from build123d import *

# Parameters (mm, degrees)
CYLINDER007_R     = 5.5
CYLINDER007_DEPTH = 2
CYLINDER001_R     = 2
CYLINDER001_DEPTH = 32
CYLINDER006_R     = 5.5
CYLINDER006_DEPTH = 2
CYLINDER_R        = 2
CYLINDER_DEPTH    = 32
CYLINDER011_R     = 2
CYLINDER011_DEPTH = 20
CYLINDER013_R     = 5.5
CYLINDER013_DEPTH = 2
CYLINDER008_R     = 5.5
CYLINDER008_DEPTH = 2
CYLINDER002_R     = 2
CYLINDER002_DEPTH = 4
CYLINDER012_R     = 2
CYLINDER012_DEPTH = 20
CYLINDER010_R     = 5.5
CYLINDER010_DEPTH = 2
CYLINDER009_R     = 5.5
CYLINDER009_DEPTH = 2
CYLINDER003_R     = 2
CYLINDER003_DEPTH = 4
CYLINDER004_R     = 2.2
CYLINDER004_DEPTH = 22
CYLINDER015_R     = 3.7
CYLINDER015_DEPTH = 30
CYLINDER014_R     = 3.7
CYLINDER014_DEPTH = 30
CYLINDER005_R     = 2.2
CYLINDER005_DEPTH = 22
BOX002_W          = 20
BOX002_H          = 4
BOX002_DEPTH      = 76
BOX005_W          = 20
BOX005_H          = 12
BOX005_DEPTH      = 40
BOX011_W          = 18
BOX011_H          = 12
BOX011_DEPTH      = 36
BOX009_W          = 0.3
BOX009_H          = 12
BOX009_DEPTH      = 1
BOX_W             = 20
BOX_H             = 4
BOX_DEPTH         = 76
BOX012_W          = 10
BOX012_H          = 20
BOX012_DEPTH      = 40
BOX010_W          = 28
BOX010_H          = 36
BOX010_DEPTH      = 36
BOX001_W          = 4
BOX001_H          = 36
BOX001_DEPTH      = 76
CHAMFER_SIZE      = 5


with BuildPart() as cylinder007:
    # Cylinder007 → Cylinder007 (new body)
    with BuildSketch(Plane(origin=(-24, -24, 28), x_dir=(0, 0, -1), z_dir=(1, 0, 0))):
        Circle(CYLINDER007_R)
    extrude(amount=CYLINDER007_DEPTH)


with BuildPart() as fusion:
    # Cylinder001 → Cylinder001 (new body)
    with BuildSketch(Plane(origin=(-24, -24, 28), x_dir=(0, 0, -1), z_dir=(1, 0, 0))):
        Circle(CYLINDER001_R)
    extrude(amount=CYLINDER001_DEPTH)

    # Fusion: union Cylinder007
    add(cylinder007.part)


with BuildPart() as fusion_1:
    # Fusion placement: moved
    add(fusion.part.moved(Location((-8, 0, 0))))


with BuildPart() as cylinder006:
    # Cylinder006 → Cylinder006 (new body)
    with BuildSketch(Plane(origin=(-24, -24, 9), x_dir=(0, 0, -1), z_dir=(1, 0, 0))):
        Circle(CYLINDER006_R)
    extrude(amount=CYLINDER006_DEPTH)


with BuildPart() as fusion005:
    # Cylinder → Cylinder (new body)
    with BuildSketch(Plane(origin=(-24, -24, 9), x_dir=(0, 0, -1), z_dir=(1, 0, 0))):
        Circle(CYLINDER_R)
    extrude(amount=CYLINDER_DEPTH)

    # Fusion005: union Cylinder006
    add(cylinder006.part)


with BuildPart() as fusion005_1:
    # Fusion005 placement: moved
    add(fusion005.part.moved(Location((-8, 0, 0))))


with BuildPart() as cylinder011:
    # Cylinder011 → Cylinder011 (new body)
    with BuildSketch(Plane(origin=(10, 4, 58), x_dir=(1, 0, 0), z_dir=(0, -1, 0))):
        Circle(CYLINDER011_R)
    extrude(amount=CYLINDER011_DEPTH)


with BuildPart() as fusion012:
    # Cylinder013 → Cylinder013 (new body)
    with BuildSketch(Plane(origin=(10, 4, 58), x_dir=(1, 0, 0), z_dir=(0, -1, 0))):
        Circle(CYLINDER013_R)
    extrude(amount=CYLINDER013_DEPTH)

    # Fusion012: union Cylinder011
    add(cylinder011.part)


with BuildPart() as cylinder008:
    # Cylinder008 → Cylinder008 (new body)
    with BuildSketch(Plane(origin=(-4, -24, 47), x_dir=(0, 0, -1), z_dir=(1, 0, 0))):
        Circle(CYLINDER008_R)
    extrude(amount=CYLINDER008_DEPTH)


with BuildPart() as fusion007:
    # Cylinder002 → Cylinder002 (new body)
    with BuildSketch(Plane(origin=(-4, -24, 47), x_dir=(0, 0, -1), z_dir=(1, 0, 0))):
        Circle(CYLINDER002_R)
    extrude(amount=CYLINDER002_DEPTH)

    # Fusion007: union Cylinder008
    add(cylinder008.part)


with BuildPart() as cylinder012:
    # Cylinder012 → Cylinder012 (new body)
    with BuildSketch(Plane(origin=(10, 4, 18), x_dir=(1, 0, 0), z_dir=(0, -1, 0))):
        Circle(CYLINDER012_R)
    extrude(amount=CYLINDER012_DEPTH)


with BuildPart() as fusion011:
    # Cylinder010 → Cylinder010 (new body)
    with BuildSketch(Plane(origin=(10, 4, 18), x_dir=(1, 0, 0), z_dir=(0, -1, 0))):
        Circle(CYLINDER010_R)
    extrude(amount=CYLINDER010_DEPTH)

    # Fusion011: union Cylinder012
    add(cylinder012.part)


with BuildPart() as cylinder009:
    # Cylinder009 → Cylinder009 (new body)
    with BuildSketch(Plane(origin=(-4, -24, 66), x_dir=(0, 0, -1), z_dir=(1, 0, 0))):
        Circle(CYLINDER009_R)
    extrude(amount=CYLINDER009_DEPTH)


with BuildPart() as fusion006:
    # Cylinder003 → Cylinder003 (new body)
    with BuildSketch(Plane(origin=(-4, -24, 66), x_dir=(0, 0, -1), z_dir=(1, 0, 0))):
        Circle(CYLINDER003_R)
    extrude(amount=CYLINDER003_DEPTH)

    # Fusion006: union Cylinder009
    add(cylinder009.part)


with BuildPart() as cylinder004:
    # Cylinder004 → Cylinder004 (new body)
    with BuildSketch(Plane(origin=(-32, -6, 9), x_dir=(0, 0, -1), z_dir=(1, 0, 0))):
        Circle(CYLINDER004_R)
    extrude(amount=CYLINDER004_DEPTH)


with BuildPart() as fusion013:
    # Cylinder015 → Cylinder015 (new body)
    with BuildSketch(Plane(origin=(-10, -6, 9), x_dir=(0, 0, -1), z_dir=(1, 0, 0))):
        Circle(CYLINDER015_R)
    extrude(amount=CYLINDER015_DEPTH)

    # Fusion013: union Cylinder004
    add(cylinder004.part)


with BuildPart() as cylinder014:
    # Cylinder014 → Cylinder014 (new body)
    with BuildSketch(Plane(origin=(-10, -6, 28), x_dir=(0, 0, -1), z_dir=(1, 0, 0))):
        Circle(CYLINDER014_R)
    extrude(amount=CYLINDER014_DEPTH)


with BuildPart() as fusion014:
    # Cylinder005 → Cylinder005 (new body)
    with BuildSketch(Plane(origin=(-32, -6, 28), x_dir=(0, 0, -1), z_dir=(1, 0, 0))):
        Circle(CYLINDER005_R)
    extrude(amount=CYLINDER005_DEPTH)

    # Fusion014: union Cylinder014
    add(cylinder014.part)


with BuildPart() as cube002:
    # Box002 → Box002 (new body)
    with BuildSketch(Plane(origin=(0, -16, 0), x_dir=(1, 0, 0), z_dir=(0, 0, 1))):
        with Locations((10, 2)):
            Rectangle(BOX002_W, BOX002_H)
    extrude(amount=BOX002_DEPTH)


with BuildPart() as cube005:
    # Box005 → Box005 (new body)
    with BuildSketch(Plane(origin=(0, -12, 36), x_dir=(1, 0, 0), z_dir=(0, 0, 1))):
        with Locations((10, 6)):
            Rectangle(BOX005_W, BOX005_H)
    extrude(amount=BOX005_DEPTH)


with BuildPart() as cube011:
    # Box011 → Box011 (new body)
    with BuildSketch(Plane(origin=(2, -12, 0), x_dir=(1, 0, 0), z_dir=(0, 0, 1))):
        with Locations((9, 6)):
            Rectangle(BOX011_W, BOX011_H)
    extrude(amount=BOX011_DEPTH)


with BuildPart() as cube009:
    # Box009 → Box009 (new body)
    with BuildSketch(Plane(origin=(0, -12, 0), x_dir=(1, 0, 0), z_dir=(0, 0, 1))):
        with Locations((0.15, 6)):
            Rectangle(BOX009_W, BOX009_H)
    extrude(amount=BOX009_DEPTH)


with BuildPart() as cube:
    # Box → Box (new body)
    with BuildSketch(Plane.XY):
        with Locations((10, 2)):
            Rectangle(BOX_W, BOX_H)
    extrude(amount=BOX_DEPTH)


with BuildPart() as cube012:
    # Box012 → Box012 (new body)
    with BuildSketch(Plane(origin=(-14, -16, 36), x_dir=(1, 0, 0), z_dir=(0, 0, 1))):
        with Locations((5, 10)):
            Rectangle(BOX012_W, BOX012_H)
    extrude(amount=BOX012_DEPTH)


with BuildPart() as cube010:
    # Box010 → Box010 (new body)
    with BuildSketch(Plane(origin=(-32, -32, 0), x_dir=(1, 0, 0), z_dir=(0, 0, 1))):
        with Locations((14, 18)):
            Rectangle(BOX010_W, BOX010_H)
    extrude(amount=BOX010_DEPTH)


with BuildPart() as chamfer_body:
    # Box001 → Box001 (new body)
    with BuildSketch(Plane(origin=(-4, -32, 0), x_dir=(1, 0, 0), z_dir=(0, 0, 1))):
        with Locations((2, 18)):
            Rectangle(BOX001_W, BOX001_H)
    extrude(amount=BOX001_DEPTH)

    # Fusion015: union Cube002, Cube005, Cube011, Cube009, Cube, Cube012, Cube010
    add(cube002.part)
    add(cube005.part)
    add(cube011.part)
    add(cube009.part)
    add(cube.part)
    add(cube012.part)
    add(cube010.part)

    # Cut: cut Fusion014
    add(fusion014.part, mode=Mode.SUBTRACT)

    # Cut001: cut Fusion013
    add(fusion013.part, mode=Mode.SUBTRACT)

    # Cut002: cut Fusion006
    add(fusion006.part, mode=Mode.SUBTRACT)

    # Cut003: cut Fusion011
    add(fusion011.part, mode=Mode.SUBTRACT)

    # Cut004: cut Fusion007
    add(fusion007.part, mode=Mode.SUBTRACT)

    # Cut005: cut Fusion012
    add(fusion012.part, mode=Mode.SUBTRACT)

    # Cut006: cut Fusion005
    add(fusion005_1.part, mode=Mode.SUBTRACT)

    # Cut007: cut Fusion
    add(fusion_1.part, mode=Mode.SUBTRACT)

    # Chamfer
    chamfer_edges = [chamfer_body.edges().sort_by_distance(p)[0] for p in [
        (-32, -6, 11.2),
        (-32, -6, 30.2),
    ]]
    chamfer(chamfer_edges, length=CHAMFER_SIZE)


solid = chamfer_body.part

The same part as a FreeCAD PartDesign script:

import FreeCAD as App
import Part
import Sketcher

V = App.Vector


def edges_at(feature, points):
    """Names of the edges that pass closest to the given points."""
    edges = feature.Shape.Edges
    near = lambda p: min(range(len(edges)), key=lambda i: edges[i].distToShape(Part.Vertex(*p))[0])
    return sorted({f"Edge{near(p) + 1}" for p in points})

doc = App.newDocument("Part")
body = doc.addObject("PartDesign::Body", "Body")

sketch1 = body.newObject("Sketcher::SketchObject", "Sketch")
sketch1.AttachmentSupport = (doc.getObject("YZ_Plane"), [""])
sketch1.MapMode = "FlatFace"
sketch1.AttachmentOffset = App.Placement(V(0, 0, -24), App.Rotation())
sketch1.addGeometry(Part.Circle(V(-24, 28, 0), V(0, 0, 1), 5.5), False)
sketch1.addConstraint(Sketcher.Constraint("Diameter", 0, 11.0))
sketch1.addConstraint(Sketcher.Constraint("DistanceX", 0, 3, -1, 1, 24.0))
sketch1.addConstraint(Sketcher.Constraint("DistanceY", -1, 1, 0, 3, 28.0))
pad1 = body.newObject("PartDesign::Pad", "Pad")
pad1.Profile = sketch1
pad1.Length = 2
body2 = doc.addObject("PartDesign::Body", "Body001")

sketch2 = body2.newObject("Sketcher::SketchObject", "Sketch001")
sketch2.AttachmentSupport = (doc.getObject("YZ_Plane001"), [""])
sketch2.MapMode = "FlatFace"
sketch2.AttachmentOffset = App.Placement(V(0, 0, -24), App.Rotation())
sketch2.addGeometry(Part.Circle(V(-24, 28, 0), V(0, 0, 1), 2), False)
sketch2.addConstraint(Sketcher.Constraint("Diameter", 0, 4.0))
sketch2.addConstraint(Sketcher.Constraint("DistanceX", 0, 3, -1, 1, 24.0))
sketch2.addConstraint(Sketcher.Constraint("DistanceY", -1, 1, 0, 3, 28.0))
pad2 = body2.newObject("PartDesign::Pad", "Pad001")
pad2.Profile = sketch2
pad2.Length = 32
doc.recompute()

boolean = body2.newObject("PartDesign::Boolean", "Boolean")
boolean.Type = "Fuse"
boolean.addObjects([body])
body3 = doc.addObject("PartDesign::Body", "Body002")
doc.recompute()

body2.Placement = App.Placement(V(-8, 0, 0), App.Rotation(V(0, 0, 1), 0))
boolean2 = body3.newObject("PartDesign::Boolean", "Boolean001")
boolean2.Type = "Fuse"
boolean2.addObjects([body2])
body4 = doc.addObject("PartDesign::Body", "Body003")

sketch3 = body4.newObject("Sketcher::SketchObject", "Sketch002")
sketch3.AttachmentSupport = (doc.getObject("YZ_Plane003"), [""])
sketch3.MapMode = "FlatFace"
sketch3.AttachmentOffset = App.Placement(V(0, 0, -24), App.Rotation())
sketch3.addGeometry(Part.Circle(V(-24, 9, 0), V(0, 0, 1), 5.5), False)
sketch3.addConstraint(Sketcher.Constraint("Diameter", 0, 11.0))
sketch3.addConstraint(Sketcher.Constraint("DistanceX", 0, 3, -1, 1, 24.0))
sketch3.addConstraint(Sketcher.Constraint("DistanceY", -1, 1, 0, 3, 9.0))
pad3 = body4.newObject("PartDesign::Pad", "Pad002")
pad3.Profile = sketch3
pad3.Length = 2
body5 = doc.addObject("PartDesign::Body", "Body004")

sketch4 = body5.newObject("Sketcher::SketchObject", "Sketch003")
sketch4.AttachmentSupport = (doc.getObject("YZ_Plane004"), [""])
sketch4.MapMode = "FlatFace"
sketch4.AttachmentOffset = App.Placement(V(0, 0, -24), App.Rotation())
sketch4.addGeometry(Part.Circle(V(-24, 9, 0), V(0, 0, 1), 2), False)
sketch4.addConstraint(Sketcher.Constraint("Diameter", 0, 4.0))
sketch4.addConstraint(Sketcher.Constraint("DistanceX", 0, 3, -1, 1, 24.0))
sketch4.addConstraint(Sketcher.Constraint("DistanceY", -1, 1, 0, 3, 9.0))
pad4 = body5.newObject("PartDesign::Pad", "Pad003")
pad4.Profile = sketch4
pad4.Length = 32
doc.recompute()

boolean3 = body5.newObject("PartDesign::Boolean", "Boolean002")
boolean3.Type = "Fuse"
boolean3.addObjects([body4])
body6 = doc.addObject("PartDesign::Body", "Body005")
doc.recompute()

body5.Placement = App.Placement(V(-8, 0, 0), App.Rotation(V(0, 0, 1), 0))
boolean4 = body6.newObject("PartDesign::Boolean", "Boolean003")
boolean4.Type = "Fuse"
boolean4.addObjects([body5])
body7 = doc.addObject("PartDesign::Body", "Body006")

sketch5 = body7.newObject("Sketcher::SketchObject", "Sketch004")
sketch5.AttachmentSupport = (doc.getObject("XZ_Plane006"), [""])
sketch5.MapMode = "FlatFace"
sketch5.AttachmentOffset = App.Placement(V(0, 0, -4), App.Rotation())
sketch5.addGeometry(Part.Circle(V(10, 58, 0), V(0, 0, 1), 2), False)
sketch5.addConstraint(Sketcher.Constraint("Diameter", 0, 4.0))
sketch5.addConstraint(Sketcher.Constraint("DistanceX", -1, 1, 0, 3, 10.0))
sketch5.addConstraint(Sketcher.Constraint("DistanceY", -1, 1, 0, 3, 58.0))
pad5 = body7.newObject("PartDesign::Pad", "Pad004")
pad5.Profile = sketch5
pad5.Length = 20
body8 = doc.addObject("PartDesign::Body", "Body007")

sketch6 = body8.newObject("Sketcher::SketchObject", "Sketch005")
sketch6.AttachmentSupport = (doc.getObject("XZ_Plane007"), [""])
sketch6.MapMode = "FlatFace"
sketch6.AttachmentOffset = App.Placement(V(0, 0, -4), App.Rotation())
sketch6.addGeometry(Part.Circle(V(10, 58, 0), V(0, 0, 1), 5.5), False)
sketch6.addConstraint(Sketcher.Constraint("Diameter", 0, 11.0))
sketch6.addConstraint(Sketcher.Constraint("DistanceX", -1, 1, 0, 3, 10.0))
sketch6.addConstraint(Sketcher.Constraint("DistanceY", -1, 1, 0, 3, 58.0))
pad6 = body8.newObject("PartDesign::Pad", "Pad005")
pad6.Profile = sketch6
pad6.Length = 2
doc.recompute()

boolean5 = body8.newObject("PartDesign::Boolean", "Boolean004")
boolean5.Type = "Fuse"
boolean5.addObjects([body7])
body9 = doc.addObject("PartDesign::Body", "Body008")

sketch7 = body9.newObject("Sketcher::SketchObject", "Sketch006")
sketch7.AttachmentSupport = (doc.getObject("YZ_Plane008"), [""])
sketch7.MapMode = "FlatFace"
sketch7.AttachmentOffset = App.Placement(V(0, 0, -4), App.Rotation())
sketch7.addGeometry(Part.Circle(V(-24, 47, 0), V(0, 0, 1), 5.5), False)
sketch7.addConstraint(Sketcher.Constraint("Diameter", 0, 11.0))
sketch7.addConstraint(Sketcher.Constraint("DistanceX", 0, 3, -1, 1, 24.0))
sketch7.addConstraint(Sketcher.Constraint("DistanceY", -1, 1, 0, 3, 47.0))
pad7 = body9.newObject("PartDesign::Pad", "Pad006")
pad7.Profile = sketch7
pad7.Length = 2
body10 = doc.addObject("PartDesign::Body", "Body009")

sketch8 = body10.newObject("Sketcher::SketchObject", "Sketch007")
sketch8.AttachmentSupport = (doc.getObject("YZ_Plane009"), [""])
sketch8.MapMode = "FlatFace"
sketch8.AttachmentOffset = App.Placement(V(0, 0, -4), App.Rotation())
sketch8.addGeometry(Part.Circle(V(-24, 47, 0), V(0, 0, 1), 2), False)
sketch8.addConstraint(Sketcher.Constraint("Diameter", 0, 4.0))
sketch8.addConstraint(Sketcher.Constraint("DistanceX", 0, 3, -1, 1, 24.0))
sketch8.addConstraint(Sketcher.Constraint("DistanceY", -1, 1, 0, 3, 47.0))
pad8 = body10.newObject("PartDesign::Pad", "Pad007")
pad8.Profile = sketch8
pad8.Length = 4
doc.recompute()

boolean6 = body10.newObject("PartDesign::Boolean", "Boolean005")
boolean6.Type = "Fuse"
boolean6.addObjects([body9])
body11 = doc.addObject("PartDesign::Body", "Body010")

sketch9 = body11.newObject("Sketcher::SketchObject", "Sketch008")
sketch9.AttachmentSupport = (doc.getObject("XZ_Plane010"), [""])
sketch9.MapMode = "FlatFace"
sketch9.AttachmentOffset = App.Placement(V(0, 0, -4), App.Rotation())
sketch9.addGeometry(Part.Circle(V(10, 18, 0), V(0, 0, 1), 2), False)
sketch9.addConstraint(Sketcher.Constraint("Diameter", 0, 4.0))
sketch9.addConstraint(Sketcher.Constraint("DistanceX", -1, 1, 0, 3, 10.0))
sketch9.addConstraint(Sketcher.Constraint("DistanceY", -1, 1, 0, 3, 18.0))
pad9 = body11.newObject("PartDesign::Pad", "Pad008")
pad9.Profile = sketch9
pad9.Length = 20
body12 = doc.addObject("PartDesign::Body", "Body011")

sketch10 = body12.newObject("Sketcher::SketchObject", "Sketch009")
sketch10.AttachmentSupport = (doc.getObject("XZ_Plane011"), [""])
sketch10.MapMode = "FlatFace"
sketch10.AttachmentOffset = App.Placement(V(0, 0, -4), App.Rotation())
sketch10.addGeometry(Part.Circle(V(10, 18, 0), V(0, 0, 1), 5.5), False)
sketch10.addConstraint(Sketcher.Constraint("Diameter", 0, 11.0))
sketch10.addConstraint(Sketcher.Constraint("DistanceX", -1, 1, 0, 3, 10.0))
sketch10.addConstraint(Sketcher.Constraint("DistanceY", -1, 1, 0, 3, 18.0))
pad10 = body12.newObject("PartDesign::Pad", "Pad009")
pad10.Profile = sketch10
pad10.Length = 2
doc.recompute()

boolean7 = body12.newObject("PartDesign::Boolean", "Boolean006")
boolean7.Type = "Fuse"
boolean7.addObjects([body11])
body13 = doc.addObject("PartDesign::Body", "Body012")

sketch11 = body13.newObject("Sketcher::SketchObject", "Sketch010")
sketch11.AttachmentSupport = (doc.getObject("YZ_Plane012"), [""])
sketch11.MapMode = "FlatFace"
sketch11.AttachmentOffset = App.Placement(V(0, 0, -4), App.Rotation())
sketch11.addGeometry(Part.Circle(V(-24, 66, 0), V(0, 0, 1), 5.5), False)
sketch11.addConstraint(Sketcher.Constraint("Diameter", 0, 11.0))
sketch11.addConstraint(Sketcher.Constraint("DistanceX", 0, 3, -1, 1, 24.0))
sketch11.addConstraint(Sketcher.Constraint("DistanceY", -1, 1, 0, 3, 66.0))
pad11 = body13.newObject("PartDesign::Pad", "Pad010")
pad11.Profile = sketch11
pad11.Length = 2
body14 = doc.addObject("PartDesign::Body", "Body013")

sketch12 = body14.newObject("Sketcher::SketchObject", "Sketch011")
sketch12.AttachmentSupport = (doc.getObject("YZ_Plane013"), [""])
sketch12.MapMode = "FlatFace"
sketch12.AttachmentOffset = App.Placement(V(0, 0, -4), App.Rotation())
sketch12.addGeometry(Part.Circle(V(-24, 66, 0), V(0, 0, 1), 2), False)
sketch12.addConstraint(Sketcher.Constraint("Diameter", 0, 4.0))
sketch12.addConstraint(Sketcher.Constraint("DistanceX", 0, 3, -1, 1, 24.0))
sketch12.addConstraint(Sketcher.Constraint("DistanceY", -1, 1, 0, 3, 66.0))
pad12 = body14.newObject("PartDesign::Pad", "Pad011")
pad12.Profile = sketch12
pad12.Length = 4
doc.recompute()

boolean8 = body14.newObject("PartDesign::Boolean", "Boolean007")
boolean8.Type = "Fuse"
boolean8.addObjects([body13])
body15 = doc.addObject("PartDesign::Body", "Body014")

sketch13 = body15.newObject("Sketcher::SketchObject", "Sketch012")
sketch13.AttachmentSupport = (doc.getObject("YZ_Plane014"), [""])
sketch13.MapMode = "FlatFace"
sketch13.AttachmentOffset = App.Placement(V(0, 0, -32), App.Rotation())
sketch13.addGeometry(Part.Circle(V(-6, 9, 0), V(0, 0, 1), 2.2), False)
sketch13.addConstraint(Sketcher.Constraint("Diameter", 0, 4.4))
sketch13.addConstraint(Sketcher.Constraint("DistanceX", 0, 3, -1, 1, 6.0))
sketch13.addConstraint(Sketcher.Constraint("DistanceY", -1, 1, 0, 3, 9.0))
pad13 = body15.newObject("PartDesign::Pad", "Pad012")
pad13.Profile = sketch13
pad13.Length = 22
body16 = doc.addObject("PartDesign::Body", "Body015")

sketch14 = body16.newObject("Sketcher::SketchObject", "Sketch013")
sketch14.AttachmentSupport = (doc.getObject("YZ_Plane015"), [""])
sketch14.MapMode = "FlatFace"
sketch14.AttachmentOffset = App.Placement(V(0, 0, -10), App.Rotation())
sketch14.addGeometry(Part.Circle(V(-6, 9, 0), V(0, 0, 1), 3.7), False)
sketch14.addConstraint(Sketcher.Constraint("Diameter", 0, 7.4))
sketch14.addConstraint(Sketcher.Constraint("DistanceX", 0, 3, -1, 1, 6.0))
sketch14.addConstraint(Sketcher.Constraint("DistanceY", -1, 1, 0, 3, 9.0))
pad14 = body16.newObject("PartDesign::Pad", "Pad013")
pad14.Profile = sketch14
pad14.Length = 30
doc.recompute()

boolean9 = body16.newObject("PartDesign::Boolean", "Boolean008")
boolean9.Type = "Fuse"
boolean9.addObjects([body15])
body17 = doc.addObject("PartDesign::Body", "Body016")

sketch15 = body17.newObject("Sketcher::SketchObject", "Sketch014")
sketch15.AttachmentSupport = (doc.getObject("YZ_Plane016"), [""])
sketch15.MapMode = "FlatFace"
sketch15.AttachmentOffset = App.Placement(V(0, 0, -10), App.Rotation())
sketch15.addGeometry(Part.Circle(V(-6, 28, 0), V(0, 0, 1), 3.7), False)
sketch15.addConstraint(Sketcher.Constraint("Diameter", 0, 7.4))
sketch15.addConstraint(Sketcher.Constraint("DistanceX", 0, 3, -1, 1, 6.0))
sketch15.addConstraint(Sketcher.Constraint("DistanceY", -1, 1, 0, 3, 28.0))
pad15 = body17.newObject("PartDesign::Pad", "Pad014")
pad15.Profile = sketch15
pad15.Length = 30
body18 = doc.addObject("PartDesign::Body", "Body017")

sketch16 = body18.newObject("Sketcher::SketchObject", "Sketch015")
sketch16.AttachmentSupport = (doc.getObject("YZ_Plane017"), [""])
sketch16.MapMode = "FlatFace"
sketch16.AttachmentOffset = App.Placement(V(0, 0, -32), App.Rotation())
sketch16.addGeometry(Part.Circle(V(-6, 28, 0), V(0, 0, 1), 2.2), False)
sketch16.addConstraint(Sketcher.Constraint("Diameter", 0, 4.4))
sketch16.addConstraint(Sketcher.Constraint("DistanceX", 0, 3, -1, 1, 6.0))
sketch16.addConstraint(Sketcher.Constraint("DistanceY", -1, 1, 0, 3, 28.0))
pad16 = body18.newObject("PartDesign::Pad", "Pad015")
pad16.Profile = sketch16
pad16.Length = 22
doc.recompute()

boolean10 = body18.newObject("PartDesign::Boolean", "Boolean009")
boolean10.Type = "Fuse"
boolean10.addObjects([body17])
body19 = doc.addObject("PartDesign::Body", "Body018")

sketch17 = body19.newObject("Sketcher::SketchObject", "Sketch016")
sketch17.AttachmentSupport = (doc.getObject("XY_Plane018"), [""])
sketch17.MapMode = "FlatFace"
sketch17.addGeometry(Part.LineSegment(V(0, -12, 0), V(0, -16, 0)), False)
sketch17.addGeometry(Part.LineSegment(V(0, -16, 0), V(20, -16, 0)), False)
sketch17.addGeometry(Part.LineSegment(V(20, -16, 0), V(20, -12, 0)), False)
sketch17.addGeometry(Part.LineSegment(V(20, -12, 0), V(0, -12, 0)), False)
sketch17.addConstraint(Sketcher.Constraint("Coincident", 0, 2, 1, 1))
sketch17.addConstraint(Sketcher.Constraint("Coincident", 1, 2, 2, 1))
sketch17.addConstraint(Sketcher.Constraint("Coincident", 2, 2, 3, 1))
sketch17.addConstraint(Sketcher.Constraint("Coincident", 3, 2, 0, 1))
sketch17.addConstraint(Sketcher.Constraint("Vertical", 0))
sketch17.addConstraint(Sketcher.Constraint("Horizontal", 1))
sketch17.addConstraint(Sketcher.Constraint("Vertical", 2))
sketch17.addConstraint(Sketcher.Constraint("Horizontal", 3))
sketch17.addConstraint(Sketcher.Constraint("PointOnObject", 0, 2, -2))
sketch17.addConstraint(Sketcher.Constraint("DistanceX", 1, 1, 1, 2, 20.0))
sketch17.addConstraint(Sketcher.Constraint("DistanceY", 0, 2, 0, 1, 4.0))
sketch17.addConstraint(Sketcher.Constraint("DistanceY", 0, 2, -1, 1, 16.0))
pad17 = body19.newObject("PartDesign::Pad", "Pad016")
pad17.Profile = sketch17
pad17.Length = 76
body20 = doc.addObject("PartDesign::Body", "Body019")

sketch18 = body20.newObject("Sketcher::SketchObject", "Sketch017")
sketch18.AttachmentSupport = (doc.getObject("XY_Plane019"), [""])
sketch18.MapMode = "FlatFace"
sketch18.AttachmentOffset = App.Placement(V(0, 0, 36), App.Rotation())
sketch18.addGeometry(Part.LineSegment(V(0, 0, 0), V(0, -12, 0)), False)
sketch18.addGeometry(Part.LineSegment(V(0, -12, 0), V(20, -12, 0)), False)
sketch18.addGeometry(Part.LineSegment(V(20, -12, 0), V(20, 0, 0)), False)
sketch18.addGeometry(Part.LineSegment(V(20, 0, 0), V(0, 0, 0)), False)
sketch18.addConstraint(Sketcher.Constraint("Coincident", 0, 2, 1, 1))
sketch18.addConstraint(Sketcher.Constraint("Coincident", 1, 2, 2, 1))
sketch18.addConstraint(Sketcher.Constraint("Coincident", 2, 2, 3, 1))
sketch18.addConstraint(Sketcher.Constraint("Coincident", 3, 2, 0, 1))
sketch18.addConstraint(Sketcher.Constraint("Vertical", 0))
sketch18.addConstraint(Sketcher.Constraint("Horizontal", 1))
sketch18.addConstraint(Sketcher.Constraint("Vertical", 2))
sketch18.addConstraint(Sketcher.Constraint("Horizontal", 3))
sketch18.addConstraint(Sketcher.Constraint("Coincident", 3, 2, -1, 1))
sketch18.addConstraint(Sketcher.Constraint("DistanceX", 1, 1, 1, 2, 20.0))
sketch18.addConstraint(Sketcher.Constraint("DistanceY", 0, 2, 0, 1, 12.0))
pad18 = body20.newObject("PartDesign::Pad", "Pad017")
pad18.Profile = sketch18
pad18.Length = 40
body21 = doc.addObject("PartDesign::Body", "Body020")

sketch19 = body21.newObject("Sketcher::SketchObject", "Sketch018")
sketch19.AttachmentSupport = (doc.getObject("XY_Plane020"), [""])
sketch19.MapMode = "FlatFace"
sketch19.addGeometry(Part.LineSegment(V(2, 0, 0), V(2, -12, 0)), False)
sketch19.addGeometry(Part.LineSegment(V(2, -12, 0), V(20, -12, 0)), False)
sketch19.addGeometry(Part.LineSegment(V(20, -12, 0), V(20, 0, 0)), False)
sketch19.addGeometry(Part.LineSegment(V(20, 0, 0), V(2, 0, 0)), False)
sketch19.addConstraint(Sketcher.Constraint("Coincident", 0, 2, 1, 1))
sketch19.addConstraint(Sketcher.Constraint("Coincident", 1, 2, 2, 1))
sketch19.addConstraint(Sketcher.Constraint("Coincident", 2, 2, 3, 1))
sketch19.addConstraint(Sketcher.Constraint("Coincident", 3, 2, 0, 1))
sketch19.addConstraint(Sketcher.Constraint("Vertical", 0))
sketch19.addConstraint(Sketcher.Constraint("Horizontal", 1))
sketch19.addConstraint(Sketcher.Constraint("Vertical", 2))
sketch19.addConstraint(Sketcher.Constraint("Horizontal", 3))
sketch19.addConstraint(Sketcher.Constraint("PointOnObject", 2, 2, -1))
sketch19.addConstraint(Sketcher.Constraint("DistanceX", 1, 1, 1, 2, 18.0))
sketch19.addConstraint(Sketcher.Constraint("DistanceY", 0, 2, 0, 1, 12.0))
sketch19.addConstraint(Sketcher.Constraint("DistanceX", -1, 1, 0, 2, 2.0))
pad19 = body21.newObject("PartDesign::Pad", "Pad018")
pad19.Profile = sketch19
pad19.Length = 36
body22 = doc.addObject("PartDesign::Body", "Body021")

sketch20 = body22.newObject("Sketcher::SketchObject", "Sketch019")
sketch20.AttachmentSupport = (doc.getObject("XY_Plane021"), [""])
sketch20.MapMode = "FlatFace"
sketch20.addGeometry(Part.LineSegment(V(0, 0, 0), V(0, -12, 0)), False)
sketch20.addGeometry(Part.LineSegment(V(0, -12, 0), V(0.3, -12, 0)), False)
sketch20.addGeometry(Part.LineSegment(V(0.3, -12, 0), V(0.3, 0, 0)), False)
sketch20.addGeometry(Part.LineSegment(V(0.3, 0, 0), V(0, 0, 0)), False)
sketch20.addConstraint(Sketcher.Constraint("Coincident", 0, 2, 1, 1))
sketch20.addConstraint(Sketcher.Constraint("Coincident", 1, 2, 2, 1))
sketch20.addConstraint(Sketcher.Constraint("Coincident", 2, 2, 3, 1))
sketch20.addConstraint(Sketcher.Constraint("Coincident", 3, 2, 0, 1))
sketch20.addConstraint(Sketcher.Constraint("Vertical", 0))
sketch20.addConstraint(Sketcher.Constraint("Horizontal", 1))
sketch20.addConstraint(Sketcher.Constraint("Vertical", 2))
sketch20.addConstraint(Sketcher.Constraint("Horizontal", 3))
sketch20.addConstraint(Sketcher.Constraint("Coincident", 3, 2, -1, 1))
sketch20.addConstraint(Sketcher.Constraint("DistanceY", 0, 2, 0, 1, 12.0))
sketch20.addConstraint(Sketcher.Constraint("DistanceX", 1, 1, 1, 2, 0.3))
pad20 = body22.newObject("PartDesign::Pad", "Pad019")
pad20.Profile = sketch20
pad20.Length = 1
body23 = doc.addObject("PartDesign::Body", "Body022")

sketch21 = body23.newObject("Sketcher::SketchObject", "Sketch020")
sketch21.AttachmentSupport = (doc.getObject("XY_Plane022"), [""])
sketch21.MapMode = "FlatFace"
sketch21.addGeometry(Part.LineSegment(V(0, 4, 0), V(0, 0, 0)), False)
sketch21.addGeometry(Part.LineSegment(V(0, 0, 0), V(20, 0, 0)), False)
sketch21.addGeometry(Part.LineSegment(V(20, 0, 0), V(20, 4, 0)), False)
sketch21.addGeometry(Part.LineSegment(V(20, 4, 0), V(0, 4, 0)), False)
sketch21.addConstraint(Sketcher.Constraint("Coincident", 0, 2, 1, 1))
sketch21.addConstraint(Sketcher.Constraint("Coincident", 1, 2, 2, 1))
sketch21.addConstraint(Sketcher.Constraint("Coincident", 2, 2, 3, 1))
sketch21.addConstraint(Sketcher.Constraint("Coincident", 3, 2, 0, 1))
sketch21.addConstraint(Sketcher.Constraint("Vertical", 0))
sketch21.addConstraint(Sketcher.Constraint("Horizontal", 1))
sketch21.addConstraint(Sketcher.Constraint("Vertical", 2))
sketch21.addConstraint(Sketcher.Constraint("Horizontal", 3))
sketch21.addConstraint(Sketcher.Constraint("Coincident", 0, 2, -1, 1))
sketch21.addConstraint(Sketcher.Constraint("DistanceX", 1, 1, 1, 2, 20.0))
sketch21.addConstraint(Sketcher.Constraint("DistanceY", 0, 2, 0, 1, 4.0))
pad21 = body23.newObject("PartDesign::Pad", "Pad020")
pad21.Profile = sketch21
pad21.Length = 76
body24 = doc.addObject("PartDesign::Body", "Body023")

sketch22 = body24.newObject("Sketcher::SketchObject", "Sketch021")
sketch22.AttachmentSupport = (doc.getObject("XY_Plane023"), [""])
sketch22.MapMode = "FlatFace"
sketch22.AttachmentOffset = App.Placement(V(0, 0, 36), App.Rotation())
sketch22.addGeometry(Part.LineSegment(V(-14, 4, 0), V(-14, -16, 0)), False)
sketch22.addGeometry(Part.LineSegment(V(-14, -16, 0), V(-4, -16, 0)), False)
sketch22.addGeometry(Part.LineSegment(V(-4, -16, 0), V(-4, 4, 0)), False)
sketch22.addGeometry(Part.LineSegment(V(-4, 4, 0), V(-14, 4, 0)), False)
sketch22.addConstraint(Sketcher.Constraint("Coincident", 0, 2, 1, 1))
sketch22.addConstraint(Sketcher.Constraint("Coincident", 1, 2, 2, 1))
sketch22.addConstraint(Sketcher.Constraint("Coincident", 2, 2, 3, 1))
sketch22.addConstraint(Sketcher.Constraint("Coincident", 3, 2, 0, 1))
sketch22.addConstraint(Sketcher.Constraint("Vertical", 0))
sketch22.addConstraint(Sketcher.Constraint("Horizontal", 1))
sketch22.addConstraint(Sketcher.Constraint("Vertical", 2))
sketch22.addConstraint(Sketcher.Constraint("Horizontal", 3))
sketch22.addConstraint(Sketcher.Constraint("DistanceX", 1, 1, 1, 2, 10.0))
sketch22.addConstraint(Sketcher.Constraint("DistanceY", 0, 2, 0, 1, 20.0))
sketch22.addConstraint(Sketcher.Constraint("DistanceX", 0, 2, -1, 1, 14.0))
sketch22.addConstraint(Sketcher.Constraint("DistanceY", 0, 2, -1, 1, 16.0))
pad22 = body24.newObject("PartDesign::Pad", "Pad021")
pad22.Profile = sketch22
pad22.Length = 40
body25 = doc.addObject("PartDesign::Body", "Body024")

sketch23 = body25.newObject("Sketcher::SketchObject", "Sketch022")
sketch23.AttachmentSupport = (doc.getObject("XY_Plane024"), [""])
sketch23.MapMode = "FlatFace"
sketch23.addGeometry(Part.LineSegment(V(-32, 4, 0), V(-32, -32, 0)), False)
sketch23.addGeometry(Part.LineSegment(V(-32, -32, 0), V(-4, -32, 0)), False)
sketch23.addGeometry(Part.LineSegment(V(-4, -32, 0), V(-4, 4, 0)), False)
sketch23.addGeometry(Part.LineSegment(V(-4, 4, 0), V(-32, 4, 0)), False)
sketch23.addConstraint(Sketcher.Constraint("Coincident", 0, 2, 1, 1))
sketch23.addConstraint(Sketcher.Constraint("Coincident", 1, 2, 2, 1))
sketch23.addConstraint(Sketcher.Constraint("Coincident", 2, 2, 3, 1))
sketch23.addConstraint(Sketcher.Constraint("Coincident", 3, 2, 0, 1))
sketch23.addConstraint(Sketcher.Constraint("Vertical", 0))
sketch23.addConstraint(Sketcher.Constraint("Horizontal", 1))
sketch23.addConstraint(Sketcher.Constraint("Vertical", 2))
sketch23.addConstraint(Sketcher.Constraint("Horizontal", 3))
sketch23.addConstraint(Sketcher.Constraint("DistanceX", 1, 1, 1, 2, 28.0))
sketch23.addConstraint(Sketcher.Constraint("DistanceY", 0, 2, 0, 1, 36.0))
sketch23.addConstraint(Sketcher.Constraint("DistanceX", 0, 2, -1, 1, 32.0))
sketch23.addConstraint(Sketcher.Constraint("DistanceY", 0, 2, -1, 1, 32.0))
pad23 = body25.newObject("PartDesign::Pad", "Pad022")
pad23.Profile = sketch23
pad23.Length = 36
body26 = doc.addObject("PartDesign::Body", "Body025")

sketch24 = body26.newObject("Sketcher::SketchObject", "Sketch023")
sketch24.AttachmentSupport = (doc.getObject("XY_Plane025"), [""])
sketch24.MapMode = "FlatFace"
sketch24.addGeometry(Part.LineSegment(V(-4, 4, 0), V(-4, -32, 0)), False)
sketch24.addGeometry(Part.LineSegment(V(-4, -32, 0), V(0, -32, 0)), False)
sketch24.addGeometry(Part.LineSegment(V(0, -32, 0), V(0, 4, 0)), False)
sketch24.addGeometry(Part.LineSegment(V(0, 4, 0), V(-4, 4, 0)), False)
sketch24.addConstraint(Sketcher.Constraint("Coincident", 0, 2, 1, 1))
sketch24.addConstraint(Sketcher.Constraint("Coincident", 1, 2, 2, 1))
sketch24.addConstraint(Sketcher.Constraint("Coincident", 2, 2, 3, 1))
sketch24.addConstraint(Sketcher.Constraint("Coincident", 3, 2, 0, 1))
sketch24.addConstraint(Sketcher.Constraint("Vertical", 0))
sketch24.addConstraint(Sketcher.Constraint("Horizontal", 1))
sketch24.addConstraint(Sketcher.Constraint("Vertical", 2))
sketch24.addConstraint(Sketcher.Constraint("Horizontal", 3))
sketch24.addConstraint(Sketcher.Constraint("PointOnObject", 1, 2, -2))
sketch24.addConstraint(Sketcher.Constraint("DistanceX", 1, 1, 1, 2, 4.0))
sketch24.addConstraint(Sketcher.Constraint("DistanceY", 0, 2, 0, 1, 36.0))
sketch24.addConstraint(Sketcher.Constraint("DistanceY", 0, 2, -1, 1, 32.0))
pad24 = body26.newObject("PartDesign::Pad", "Pad023")
pad24.Profile = sketch24
pad24.Length = 76
doc.recompute()

boolean11 = body26.newObject("PartDesign::Boolean", "Boolean010")
boolean11.Type = "Fuse"
boolean11.addObjects([body19])
doc.recompute()

boolean12 = body26.newObject("PartDesign::Boolean", "Boolean011")
boolean12.Type = "Fuse"
boolean12.addObjects([body20])
doc.recompute()

boolean13 = body26.newObject("PartDesign::Boolean", "Boolean012")
boolean13.Type = "Fuse"
boolean13.addObjects([body21])
doc.recompute()

boolean14 = body26.newObject("PartDesign::Boolean", "Boolean013")
boolean14.Type = "Fuse"
boolean14.addObjects([body22])
doc.recompute()

boolean15 = body26.newObject("PartDesign::Boolean", "Boolean014")
boolean15.Type = "Fuse"
boolean15.addObjects([body23])
doc.recompute()

boolean16 = body26.newObject("PartDesign::Boolean", "Boolean015")
boolean16.Type = "Fuse"
boolean16.addObjects([body24])
doc.recompute()

boolean17 = body26.newObject("PartDesign::Boolean", "Boolean016")
boolean17.Type = "Fuse"
boolean17.addObjects([body25])
doc.recompute()

boolean18 = body26.newObject("PartDesign::Boolean", "Boolean017")
boolean18.Type = "Cut"
boolean18.addObjects([body18])
doc.recompute()

boolean19 = body26.newObject("PartDesign::Boolean", "Boolean018")
boolean19.Type = "Cut"
boolean19.addObjects([body16])
doc.recompute()

boolean20 = body26.newObject("PartDesign::Boolean", "Boolean019")
boolean20.Type = "Cut"
boolean20.addObjects([body14])
doc.recompute()

boolean21 = body26.newObject("PartDesign::Boolean", "Boolean020")
boolean21.Type = "Cut"
boolean21.addObjects([body12])
doc.recompute()

boolean22 = body26.newObject("PartDesign::Boolean", "Boolean021")
boolean22.Type = "Cut"
boolean22.addObjects([body10])
doc.recompute()

boolean23 = body26.newObject("PartDesign::Boolean", "Boolean022")
boolean23.Type = "Cut"
boolean23.addObjects([body8])
doc.recompute()

boolean24 = body26.newObject("PartDesign::Boolean", "Boolean023")
boolean24.Type = "Cut"
boolean24.addObjects([body6])
doc.recompute()

boolean25 = body26.newObject("PartDesign::Boolean", "Boolean024")
boolean25.Type = "Cut"
boolean25.addObjects([body3])
doc.recompute()

chamfer = body26.newObject("PartDesign::Chamfer", "Chamfer")
chamfer.Base = (boolean25, edges_at(boolean25, [(-32, -6, 11.2), (-32, -6, 30.2)]))
chamfer.Size = 5

doc.recompute()
